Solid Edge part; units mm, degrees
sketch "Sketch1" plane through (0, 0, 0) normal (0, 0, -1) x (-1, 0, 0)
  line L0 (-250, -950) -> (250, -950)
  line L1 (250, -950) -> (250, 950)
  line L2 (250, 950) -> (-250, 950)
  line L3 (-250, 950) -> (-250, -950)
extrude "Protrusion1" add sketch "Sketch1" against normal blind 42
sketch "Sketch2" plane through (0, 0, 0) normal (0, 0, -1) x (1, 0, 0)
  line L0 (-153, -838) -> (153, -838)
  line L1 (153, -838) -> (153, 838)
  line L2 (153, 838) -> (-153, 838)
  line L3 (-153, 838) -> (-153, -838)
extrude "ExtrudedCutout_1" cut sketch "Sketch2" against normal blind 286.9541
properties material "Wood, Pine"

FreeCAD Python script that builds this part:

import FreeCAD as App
import Part
import Sketcher

V = App.Vector


def add_polygon(sketch, points):
    """Adds a closed chain of lines whose ends are joined by coincident constraints."""
    first, n = sketch.GeometryCount, len(points)
    for a, b in zip(points, points[1:] + points[:1]):
        sketch.addGeometry(Part.LineSegment(App.Vector(*a, 0), App.Vector(*b, 0)), False)
    for i in range(n):
        sketch.addConstraint(Sketcher.Constraint("Coincident", first + i, 2, first + (i + 1) % n, 1))

doc = App.newDocument("Part")
body = doc.addObject("PartDesign::Body", "Body")

# Sketch on XY plane
sketch1 = doc.addObject("Sketcher::SketchObject", "Sketch")
body.addObject(sketch1)
sketch1.AttachmentSupport = (doc.XY_Plane, [""])
sketch1.MapMode = "FlatFace"
add_polygon(sketch1, [(250, 950), (250, -950), (-250, -950), (-250, 950)])  # lines 0-3
sketch1.addConstraint([
    Sketcher.Constraint("Vertical", 0),
    Sketcher.Constraint("Horizontal", 1),
    Sketcher.Constraint("Vertical", 2),
    Sketcher.Constraint("Horizontal", 3),
    Sketcher.Constraint("Symmetric", 0, 2, 2, 2, -1, 1),
    Sketcher.Constraint("DistanceX", 1, 2, 1, 1, 500.0),
    Sketcher.Constraint("DistanceY", 0, 2, 0, 1, 1900.0),
])
pad1 = doc.addObject("PartDesign::Pad", "Pad")
body.addObject(pad1)
pad1.Profile = sketch1
pad1.Length = 42

# Sketch on XY plane
sketch2 = doc.addObject("Sketcher::SketchObject", "Sketch001")
body.addObject(sketch2)
sketch2.AttachmentSupport = (doc.XY_Plane, [""])
sketch2.MapMode = "FlatFace"
add_polygon(sketch2, [(-153, -838), (-153, 838), (153, 838), (153, -838)])  # lines 0-3
sketch2.addConstraint([
    Sketcher.Constraint("Vertical", 0),
    Sketcher.Constraint("Horizontal", 1),
    Sketcher.Constraint("Vertical", 2),
    Sketcher.Constraint("Horizontal", 3),
    Sketcher.Constraint("Symmetric", 0, 2, 2, 2, -1, 1),
    Sketcher.Constraint("DistanceX", 1, 1, 1, 2, 306.0),
    Sketcher.Constraint("DistanceY", 0, 1, 0, 2, 1676.0),
])
pocket1 = doc.addObject("PartDesign::Pocket", "Pocket")
body.addObject(pocket1)
pocket1.Profile = sketch2
pocket1.Length = 286.9541
pocket1.Reversed = True

doc.recompute()
